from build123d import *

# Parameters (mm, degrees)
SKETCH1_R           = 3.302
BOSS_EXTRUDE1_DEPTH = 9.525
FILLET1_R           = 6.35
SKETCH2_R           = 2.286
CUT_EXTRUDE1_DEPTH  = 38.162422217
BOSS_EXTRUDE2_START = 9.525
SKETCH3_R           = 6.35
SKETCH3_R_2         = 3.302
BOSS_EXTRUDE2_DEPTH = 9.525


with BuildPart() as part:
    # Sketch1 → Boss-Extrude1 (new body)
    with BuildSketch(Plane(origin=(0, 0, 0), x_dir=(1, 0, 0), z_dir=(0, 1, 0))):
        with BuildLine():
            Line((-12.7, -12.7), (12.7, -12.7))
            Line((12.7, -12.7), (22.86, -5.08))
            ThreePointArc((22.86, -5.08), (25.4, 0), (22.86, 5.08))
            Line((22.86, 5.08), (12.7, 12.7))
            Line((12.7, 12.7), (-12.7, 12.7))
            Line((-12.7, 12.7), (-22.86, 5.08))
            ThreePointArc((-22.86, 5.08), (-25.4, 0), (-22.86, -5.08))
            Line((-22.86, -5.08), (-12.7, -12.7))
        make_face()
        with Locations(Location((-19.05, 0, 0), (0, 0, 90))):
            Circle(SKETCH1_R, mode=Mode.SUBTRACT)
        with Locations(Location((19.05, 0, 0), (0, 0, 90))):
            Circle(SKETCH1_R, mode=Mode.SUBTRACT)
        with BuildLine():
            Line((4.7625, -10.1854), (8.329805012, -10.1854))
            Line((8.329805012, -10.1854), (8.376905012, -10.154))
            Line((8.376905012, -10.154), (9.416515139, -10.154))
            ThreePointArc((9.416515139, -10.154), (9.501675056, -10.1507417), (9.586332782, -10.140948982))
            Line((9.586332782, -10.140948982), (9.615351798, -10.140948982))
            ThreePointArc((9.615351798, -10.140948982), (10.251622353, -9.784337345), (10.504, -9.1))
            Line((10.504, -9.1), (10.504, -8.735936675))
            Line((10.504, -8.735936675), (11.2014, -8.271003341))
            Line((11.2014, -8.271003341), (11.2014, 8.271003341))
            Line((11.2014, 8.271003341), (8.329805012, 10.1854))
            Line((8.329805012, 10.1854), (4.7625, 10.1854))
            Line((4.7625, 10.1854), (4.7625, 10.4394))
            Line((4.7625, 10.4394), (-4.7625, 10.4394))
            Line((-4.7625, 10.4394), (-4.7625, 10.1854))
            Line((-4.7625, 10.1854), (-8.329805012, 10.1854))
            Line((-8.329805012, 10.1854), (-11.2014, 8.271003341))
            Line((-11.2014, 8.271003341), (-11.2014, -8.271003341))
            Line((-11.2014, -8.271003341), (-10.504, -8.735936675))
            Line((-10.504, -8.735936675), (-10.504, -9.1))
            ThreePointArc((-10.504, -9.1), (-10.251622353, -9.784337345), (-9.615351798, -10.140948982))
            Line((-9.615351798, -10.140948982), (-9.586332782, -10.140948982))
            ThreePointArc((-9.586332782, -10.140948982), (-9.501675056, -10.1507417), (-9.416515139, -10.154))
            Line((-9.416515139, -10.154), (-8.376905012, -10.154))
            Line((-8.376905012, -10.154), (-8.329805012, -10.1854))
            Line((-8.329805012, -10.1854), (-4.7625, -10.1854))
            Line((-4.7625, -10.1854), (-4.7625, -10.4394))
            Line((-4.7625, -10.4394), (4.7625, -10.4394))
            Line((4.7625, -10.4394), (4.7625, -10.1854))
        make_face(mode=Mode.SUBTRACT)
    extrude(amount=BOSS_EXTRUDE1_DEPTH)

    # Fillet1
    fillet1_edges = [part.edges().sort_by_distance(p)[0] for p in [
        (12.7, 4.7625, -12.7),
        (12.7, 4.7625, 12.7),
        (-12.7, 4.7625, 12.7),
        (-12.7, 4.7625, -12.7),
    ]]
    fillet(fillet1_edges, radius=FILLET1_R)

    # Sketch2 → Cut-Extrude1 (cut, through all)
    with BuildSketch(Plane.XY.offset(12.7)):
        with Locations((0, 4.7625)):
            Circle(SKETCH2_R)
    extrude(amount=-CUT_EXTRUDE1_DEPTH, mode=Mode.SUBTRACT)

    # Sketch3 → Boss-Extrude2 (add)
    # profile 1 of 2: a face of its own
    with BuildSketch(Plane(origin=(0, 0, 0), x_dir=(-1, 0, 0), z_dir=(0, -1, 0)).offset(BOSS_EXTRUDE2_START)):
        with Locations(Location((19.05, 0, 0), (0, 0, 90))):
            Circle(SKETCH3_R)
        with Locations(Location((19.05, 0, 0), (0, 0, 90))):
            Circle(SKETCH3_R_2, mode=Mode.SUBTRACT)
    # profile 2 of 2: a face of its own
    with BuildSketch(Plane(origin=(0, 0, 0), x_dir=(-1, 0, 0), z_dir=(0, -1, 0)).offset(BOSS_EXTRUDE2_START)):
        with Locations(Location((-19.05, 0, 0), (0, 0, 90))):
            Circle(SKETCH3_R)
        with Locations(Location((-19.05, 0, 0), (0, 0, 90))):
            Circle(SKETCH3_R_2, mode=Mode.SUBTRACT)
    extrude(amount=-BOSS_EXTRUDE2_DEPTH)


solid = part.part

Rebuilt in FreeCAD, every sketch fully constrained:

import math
import FreeCAD as App
import Part
import Sketcher
Q = App.Units.Quantity


def edges_at(feature, points):
    """Names of the edges that pass closest to the given points."""
    edges = feature.Shape.Edges
    near = lambda p: min(range(len(edges)), key=lambda i: edges[i].distToShape(Part.Vertex(*p))[0])
    return sorted({f"Edge{near(p) + 1}" for p in points})

doc = App.newDocument("Part")
params = doc.addObject("Spreadsheet::Sheet", "Params")
for row, (alias, value) in enumerate([
    ("sketch1_diameter", "0.26 in"),
    ("sketch1_width", "1 in"),
    ("sketch1_radius", "0.25 in"),
    ("sketch1_length", "0.5 in"),
    ("sketch1_height", "0.01 in"),
    ("pad1_length", "0.375 in"),
    ("fillet_radius", "0.25 in"),
    ("sketch2_diameter", "0.18 in"),
    ("sketch3_diameter", "0.5 in"),
    ("sketch3_diameter2", "0.26 in"),
    ("pad2_length", "0.375 in"),
], start=1):
    params.set(f"A{row}", alias)
    params.set(f"B{row}", "=" + value)
    params.setAlias(f"B{row}", alias)

body = doc.addObject("PartDesign::Body", "Body")

# Sketch on XZ plane
sketch1 = doc.addObject("Sketcher::SketchObject", "Sketch")
body.addObject(sketch1)
sketch1.AttachmentSupport = (doc.XZ_Plane, [""])
sketch1.MapMode = "FlatFace"
sketch1.addGeometry([
    Part.LineSegment(App.Vector(-12.7, 12.7, 0), App.Vector(12.7, 12.7, 0)),  # 0
    Part.LineSegment(App.Vector(12.7, 12.7, 0), App.Vector(22.86, 5.08, 0)),  # 1
    Part.ArcOfCircle(Part.Circle(App.Vector(19.05, 0, 0), App.Vector(0, 0, 1), 6.35), math.radians(-53.130102), math.radians(53.130102)),  # 2
    Part.LineSegment(App.Vector(22.86, -5.08, 0), App.Vector(12.7, -12.7, 0)),  # 3
    Part.LineSegment(App.Vector(12.7, -12.7, 0), App.Vector(-12.7, -12.7, 0)),  # 4
    Part.LineSegment(App.Vector(-12.7, -12.7, 0), App.Vector(-22.86, -5.08, 0)),  # 5
    Part.ArcOfCircle(Part.Circle(App.Vector(-19.05, 0, 0), App.Vector(0, 0, 1), 6.35), math.radians(126.869898), math.radians(233.130102)),  # 6
    Part.LineSegment(App.Vector(-22.86, 5.08, 0), App.Vector(-12.7, 12.7, 0)),  # 7
    Part.Circle(App.Vector(-19.05, 0, 0), App.Vector(0, 0, 1), 3.302),  # 8
    Part.LineSegment(App.Vector(8.329805, 10.1854, 0), App.Vector(4.7625, 10.1854, 0)),  # 9
    Part.LineSegment(App.Vector(4.7625, 10.1854, 0), App.Vector(4.7625, 10.4394, 0)),  # 10
    Part.LineSegment(App.Vector(4.7625, 10.4394, 0), App.Vector(-4.7625, 10.4394, 0)),  # 11
    Part.LineSegment(App.Vector(-4.7625, 10.4394, 0), App.Vector(-4.7625, 10.1854, 0)),  # 12
    Part.LineSegment(App.Vector(-4.7625, 10.1854, 0), App.Vector(-8.329805, 10.1854, 0)),  # 13
    Part.LineSegment(App.Vector(-8.329805, 10.1854, 0), App.Vector(-8.376905, 10.154, 0)),  # 14
    Part.LineSegment(App.Vector(-8.376905, 10.154, 0), App.Vector(-9.416515, 10.154, 0)),  # 15
    Part.ArcOfCircle(Part.Circle(App.Vector(-9.416756, 9.045795, 0), App.Vector(0, 0, 1), 1.108205), math.radians(89.987524), math.radians(98.801919)),  # 16
    Part.LineSegment(App.Vector(-9.586333, 10.140949, 0), App.Vector(-9.615352, 10.140949, 0)),  # 17
    Part.ArcOfCircle(Part.Circle(App.Vector(-9.45, 9.1, 0), App.Vector(0, 0, 1), 1.054), math.radians(99.025862), math.radians(180)),  # 18
    Part.LineSegment(App.Vector(-10.504, 9.1, 0), App.Vector(-10.504, 8.735937, 0)),  # 19
    Part.LineSegment(App.Vector(-10.504, 8.735937, 0), App.Vector(-11.2014, 8.271003, 0)),  # 20
    Part.LineSegment(App.Vector(-11.2014, 8.271003, 0), App.Vector(-11.2014, -8.271003, 0)),  # 21
    Part.LineSegment(App.Vector(-11.2014, -8.271003, 0), App.Vector(-8.329805, -10.1854, 0)),  # 22
    Part.LineSegment(App.Vector(-8.329805, -10.1854, 0), App.Vector(-4.7625, -10.1854, 0)),  # 23
    Part.LineSegment(App.Vector(-4.7625, -10.1854, 0), App.Vector(-4.7625, -10.4394, 0)),  # 24
    Part.LineSegment(App.Vector(-4.7625, -10.4394, 0), App.Vector(4.7625, -10.4394, 0)),  # 25
    Part.LineSegment(App.Vector(4.7625, -10.4394, 0), App.Vector(4.7625, -10.1854, 0)),  # 26
    Part.LineSegment(App.Vector(4.7625, -10.1854, 0), App.Vector(8.329805, -10.1854, 0)),  # 27
    Part.LineSegment(App.Vector(8.329805, -10.1854, 0), App.Vector(11.2014, -8.271003, 0)),  # 28
    Part.LineSegment(App.Vector(11.2014, -8.271003, 0), App.Vector(11.2014, 8.271003, 0)),  # 29
    Part.LineSegment(App.Vector(11.2014, 8.271003, 0), App.Vector(10.504, 8.735937, 0)),  # 30
    Part.LineSegment(App.Vector(10.504, 8.735937, 0), App.Vector(10.504, 9.1, 0)),  # 31
    Part.ArcOfCircle(Part.Circle(App.Vector(9.45, 9.1, 0), App.Vector(0, 0, 1), 1.054), math.radians(0), math.radians(80.974138)),  # 32
    Part.LineSegment(App.Vector(9.615352, 10.140949, 0), App.Vector(9.586333, 10.140949, 0)),  # 33
    Part.ArcOfCircle(Part.Circle(App.Vector(9.416756, 9.045795, 0), App.Vector(0, 0, 1), 1.108205), math.radians(81.198081), math.radians(90.012476)),  # 34
    Part.LineSegment(App.Vector(9.416515, 10.154, 0), App.Vector(8.376905, 10.154, 0)),  # 35
    Part.LineSegment(App.Vector(8.376905, 10.154, 0), App.Vector(8.329805, 10.1854, 0)),  # 36
    Part.Circle(App.Vector(19.05, 0, 0), App.Vector(0, 0, 1), 3.302),  # 37
], False)
sketch1.addConstraint([
    Sketcher.Constraint("Coincident", 0, 2, 1, 1),
    Sketcher.Constraint("Tangent", 1, 2, 2, 2),
    Sketcher.Constraint("Tangent", 2, 1, 3, 1),
    Sketcher.Constraint("Coincident", 3, 2, 4, 1),
    Sketcher.Constraint("Coincident", 4, 2, 5, 1),
    Sketcher.Constraint("Tangent", 5, 2, 6, 2),
    Sketcher.Constraint("Tangent", 6, 1, 7, 1),
    Sketcher.Constraint("Coincident", 7, 2, 0, 1),
    Sketcher.Constraint("Coincident", 9, 2, 10, 1),
    Sketcher.Constraint("Coincident", 10, 2, 11, 1),
    Sketcher.Constraint("Coincident", 11, 2, 12, 1),
    Sketcher.Constraint("Coincident", 12, 2, 13, 1),
    Sketcher.Constraint("Coincident", 13, 2, 14, 1),
    Sketcher.Constraint("Coincident", 14, 2, 15, 1),
    Sketcher.Constraint("Coincident", 15, 2, 16, 1),
    Sketcher.Constraint("Coincident", 16, 2, 17, 1),
    Sketcher.Constraint("Coincident", 17, 2, 18, 1),
    Sketcher.Constraint("Tangent", 18, 2, 19, 1),
    Sketcher.Constraint("Coincident", 19, 2, 20, 1),
    Sketcher.Constraint("Coincident", 20, 2, 21, 1),
    Sketcher.Constraint("Coincident", 21, 2, 22, 1),
    Sketcher.Constraint("Coincident", 22, 2, 23, 1),
    Sketcher.Constraint("Coincident", 23, 2, 24, 1),
    Sketcher.Constraint("Coincident", 24, 2, 25, 1),
    Sketcher.Constraint("Coincident", 25, 2, 26, 1),
    Sketcher.Constraint("Coincident", 26, 2, 27, 1),
    Sketcher.Constraint("Coincident", 27, 2, 28, 1),
    Sketcher.Constraint("Coincident", 28, 2, 29, 1),
    Sketcher.Constraint("Coincident", 29, 2, 30, 1),
    Sketcher.Constraint("Coincident", 30, 2, 31, 1),
    Sketcher.Constraint("Tangent", 31, 2, 32, 1),
    Sketcher.Constraint("Coincident", 32, 2, 33, 1),
    Sketcher.Constraint("Coincident", 33, 2, 34, 1),
    Sketcher.Constraint("Coincident", 34, 2, 35, 1),
    Sketcher.Constraint("Coincident", 35, 2, 36, 1),
    Sketcher.Constraint("Coincident", 36, 2, 9, 1),
    Sketcher.Constraint("Horizontal", 0),
    Sketcher.Constraint("Horizontal", 4),
    Sketcher.Constraint("Horizontal", 9),
    Sketcher.Constraint("Vertical", 10),
    Sketcher.Constraint("Horizontal", 11),
    Sketcher.Constraint("Vertical", 12),
    Sketcher.Constraint("Horizontal", 13),
    Sketcher.Constraint("Horizontal", 15),
    Sketcher.Constraint("Horizontal", 17),
    Sketcher.Constraint("Vertical", 19),
    Sketcher.Constraint("Vertical", 21),
    Sketcher.Constraint("Horizontal", 23),
    Sketcher.Constraint("Vertical", 24),
    Sketcher.Constraint("Horizontal", 25),
    Sketcher.Constraint("Vertical", 26),
    Sketcher.Constraint("Horizontal", 27),
    Sketcher.Constraint("Vertical", 29),
    Sketcher.Constraint("Vertical", 31),
    Sketcher.Constraint("Horizontal", 33),
    Sketcher.Constraint("Horizontal", 35),
    Sketcher.Constraint("Coincident", 8, 3, 6, 3),
    Sketcher.Constraint("Coincident", 37, 3, 2, 3),
    Sketcher.Constraint("Equal", 2, 6),
    Sketcher.Constraint("Equal", 18, 32),
    Sketcher.Constraint("Equal", 16, 34),
    Sketcher.Constraint("Equal", 8, 37),
    Sketcher.Constraint("Symmetric", 2, 3, 6, 3, -1, 1),
    Sketcher.Constraint("Symmetric", 0, 2, 4, 2, -1, 1),
    Sketcher.Constraint("Symmetric", 9, 2, 23, 2, -1, 1),
    Sketcher.Constraint("Symmetric", 11, 2, 25, 2, -1, 1),
    Sketcher.Constraint("Symmetric", 13, 2, 27, 2, -1, 1),
    Sketcher.Constraint("Symmetric", 20, 2, 28, 2, -1, 1),
    Sketcher.Constraint("Symmetric", 18, 3, 32, 3, -2),
    Sketcher.Constraint("Symmetric", 16, 3, 34, 3, -2),
    Sketcher.Constraint("Symmetric", 2, 1, 5, 2, -2),
    Sketcher.Constraint("Symmetric", 9, 2, 12, 2, -2),
    Sketcher.Constraint("Parallel", 3, 7),
    Sketcher.Constraint("Parallel", 14, 20),
    Sketcher.Constraint("Parallel", 20, 28),
    Sketcher.Constraint("Parallel", 22, 30),
    Sketcher.Constraint("Parallel", 30, 36),
    Sketcher.Constraint("Horizontal", 21, 2, 28, 2),
    Sketcher.Constraint("Horizontal", 20, 2, 29, 2),
    Sketcher.Constraint("Horizontal", 19, 2, 30, 2),
    Sketcher.Constraint("Horizontal", 17, 2, 32, 2),
    Sketcher.Constraint("Vertical", 27, 2, 36, 2),
    Sketcher.Constraint("Equal", 15, 35),
    Sketcher.Constraint("Diameter", 8, Q("0.26 in")),
    Sketcher.Constraint("DistanceX", 0, 1, 0, 2, Q("1 in")),
    Sketcher.Constraint("Radius", 2, Q("0.25 in")),
    Sketcher.Constraint("Distance", 1, Q("0.5 in")),
    Sketcher.Constraint("DistanceY", 10, 1, 10, 2, Q("0.01 in")),
    Sketcher.Constraint("DistanceY", -1, 1, 0, 2, Q("0.5 in")),
    Sketcher.Constraint("DistanceX", 11, 2, 11, 1, Q("0.375 in")),
    Sketcher.Constraint("Radius", 18, 1.054),
    Sketcher.Constraint("DistanceY", -1, 1, 9, 2, Q("0.401 in")),
    Sketcher.Constraint("DistanceX", 20, 2, -1, 1, Q("0.441 in")),
    Sketcher.Constraint("Radius", 16, 1.108205),
    Sketcher.Constraint("DistanceX", 15, 2, 15, 1, 1.03961),
    Sketcher.Constraint("DistanceX", 17, 2, 17, 1, 0.029019),
    Sketcher.Constraint("DistanceX", 18, 3, -1, 1, 9.45),
    Sketcher.Constraint("DistanceY", -1, 1, 18, 3, 9.1),
    Sketcher.Constraint("DistanceY", -1, 1, 14, 2, 10.154),
    Sketcher.Constraint("DistanceX", 14, 2, 13, 2, 0.0471),
    Sketcher.Constraint("DistanceX", 9, 2, 9, 1, 3.567305),
    Sketcher.Constraint("DistanceY", -1, 1, 16, 2, 10.140949),
])
sketch1.setExpression("Constraints[83]", "Params.sketch1_diameter")
sketch1.setExpression("Constraints[84]", "Params.sketch1_width")
sketch1.setExpression("Constraints[85]", "Params.sketch1_radius")
sketch1.setExpression("Constraints[86]", "Params.sketch1_length")
sketch1.setExpression("Constraints[87]", "Params.sketch1_height")
pad1 = doc.addObject("PartDesign::Pad", "Pad")
body.addObject(pad1)
pad1.Profile = sketch1
pad1.setExpression("Length", "Params.pad1_length")
pad1.Reversed = True
doc.recompute()

fillet = doc.addObject("PartDesign::Fillet", "Fillet")
body.addObject(fillet)
fillet.Base = (pad1, edges_at(pad1, [
    (12.7, 4.763, -12.7),
    (12.7, 4.763, 12.7),
    (-12.7, 4.763, 12.7),
    (-12.7, 4.763, -12.7),
]))
fillet.setExpression("Radius", "Params.fillet_radius")

# Sketch on XY plane
sketch2 = doc.addObject("Sketcher::SketchObject", "Sketch001")
body.addObject(sketch2)
sketch2.AttachmentSupport = (doc.XY_Plane, [""])
sketch2.MapMode = "FlatFace"
sketch2.AttachmentOffset = App.Placement(App.Vector(0, 0, 0.5 * 25.4), App.Rotation())
sketch2.addGeometry(Part.Circle(App.Vector(0, 4.7625, 0), App.Vector(0, 0, 1), 2.286), False)
sketch2.addConstraint([
    Sketcher.Constraint("PointOnObject", 0, 3, -2),
    Sketcher.Constraint("Diameter", 0, Q("0.18 in")),
    Sketcher.Constraint("DistanceY", -1, 1, 0, 3, Q("0.1875 in")),
])
sketch2.setExpression("Constraints[1]", "Params.sketch2_diameter")
pocket1 = doc.addObject("PartDesign::Pocket", "Pocket")
body.addObject(pocket1)
pocket1.Profile = sketch2
pocket1.Type = "ThroughAll"

# Sketch on XZ plane
sketch3 = doc.addObject("Sketcher::SketchObject", "Sketch002")
body.addObject(sketch3)
sketch3.AttachmentSupport = (doc.XZ_Plane, [""])
sketch3.MapMode = "FlatFace"
sketch3.AttachmentOffset = App.Placement(App.Vector(0, 0, 0.375 * 25.4), App.Rotation())
sketch3.addGeometry([
    Part.Circle(App.Vector(-19.05, 0, 0), App.Vector(0, 0, 1), 6.35),
    Part.Circle(App.Vector(-19.05, 0, 0), App.Vector(0, 0, 1), 3.302),
    Part.Circle(App.Vector(19.05, 0, 0), App.Vector(0, 0, 1), 6.35),
    Part.Circle(App.Vector(19.05, 0, 0), App.Vector(0, 0, 1), 3.302),
], False)
sketch3.addConstraint([
    Sketcher.Constraint("Coincident", 1, 3, 0, 3),
    Sketcher.Constraint("Coincident", 3, 3, 2, 3),
    Sketcher.Constraint("Equal", 0, 2),
    Sketcher.Constraint("Equal", 1, 3),
    Sketcher.Constraint("Symmetric", 0, 3, 2, 3, -1, 1),
    Sketcher.Constraint("PointOnObject", 0, 3, -1),
    Sketcher.Constraint("Diameter", 0, Q("0.5 in")),
    Sketcher.Constraint("Diameter", 1, Q("0.26 in")),
    Sketcher.Constraint("DistanceX", 0, 3, 2, 3, Q("1.5 in")),
])
sketch3.setExpression("Constraints[6]", "Params.sketch3_diameter")
sketch3.setExpression("Constraints[7]", "Params.sketch3_diameter2")
pad2 = doc.addObject("PartDesign::Pad", "Pad001")
body.addObject(pad2)
pad2.Profile = sketch3
pad2.setExpression("Length", "Params.pad2_length")
pad2.Reversed = True

doc.recompute()
